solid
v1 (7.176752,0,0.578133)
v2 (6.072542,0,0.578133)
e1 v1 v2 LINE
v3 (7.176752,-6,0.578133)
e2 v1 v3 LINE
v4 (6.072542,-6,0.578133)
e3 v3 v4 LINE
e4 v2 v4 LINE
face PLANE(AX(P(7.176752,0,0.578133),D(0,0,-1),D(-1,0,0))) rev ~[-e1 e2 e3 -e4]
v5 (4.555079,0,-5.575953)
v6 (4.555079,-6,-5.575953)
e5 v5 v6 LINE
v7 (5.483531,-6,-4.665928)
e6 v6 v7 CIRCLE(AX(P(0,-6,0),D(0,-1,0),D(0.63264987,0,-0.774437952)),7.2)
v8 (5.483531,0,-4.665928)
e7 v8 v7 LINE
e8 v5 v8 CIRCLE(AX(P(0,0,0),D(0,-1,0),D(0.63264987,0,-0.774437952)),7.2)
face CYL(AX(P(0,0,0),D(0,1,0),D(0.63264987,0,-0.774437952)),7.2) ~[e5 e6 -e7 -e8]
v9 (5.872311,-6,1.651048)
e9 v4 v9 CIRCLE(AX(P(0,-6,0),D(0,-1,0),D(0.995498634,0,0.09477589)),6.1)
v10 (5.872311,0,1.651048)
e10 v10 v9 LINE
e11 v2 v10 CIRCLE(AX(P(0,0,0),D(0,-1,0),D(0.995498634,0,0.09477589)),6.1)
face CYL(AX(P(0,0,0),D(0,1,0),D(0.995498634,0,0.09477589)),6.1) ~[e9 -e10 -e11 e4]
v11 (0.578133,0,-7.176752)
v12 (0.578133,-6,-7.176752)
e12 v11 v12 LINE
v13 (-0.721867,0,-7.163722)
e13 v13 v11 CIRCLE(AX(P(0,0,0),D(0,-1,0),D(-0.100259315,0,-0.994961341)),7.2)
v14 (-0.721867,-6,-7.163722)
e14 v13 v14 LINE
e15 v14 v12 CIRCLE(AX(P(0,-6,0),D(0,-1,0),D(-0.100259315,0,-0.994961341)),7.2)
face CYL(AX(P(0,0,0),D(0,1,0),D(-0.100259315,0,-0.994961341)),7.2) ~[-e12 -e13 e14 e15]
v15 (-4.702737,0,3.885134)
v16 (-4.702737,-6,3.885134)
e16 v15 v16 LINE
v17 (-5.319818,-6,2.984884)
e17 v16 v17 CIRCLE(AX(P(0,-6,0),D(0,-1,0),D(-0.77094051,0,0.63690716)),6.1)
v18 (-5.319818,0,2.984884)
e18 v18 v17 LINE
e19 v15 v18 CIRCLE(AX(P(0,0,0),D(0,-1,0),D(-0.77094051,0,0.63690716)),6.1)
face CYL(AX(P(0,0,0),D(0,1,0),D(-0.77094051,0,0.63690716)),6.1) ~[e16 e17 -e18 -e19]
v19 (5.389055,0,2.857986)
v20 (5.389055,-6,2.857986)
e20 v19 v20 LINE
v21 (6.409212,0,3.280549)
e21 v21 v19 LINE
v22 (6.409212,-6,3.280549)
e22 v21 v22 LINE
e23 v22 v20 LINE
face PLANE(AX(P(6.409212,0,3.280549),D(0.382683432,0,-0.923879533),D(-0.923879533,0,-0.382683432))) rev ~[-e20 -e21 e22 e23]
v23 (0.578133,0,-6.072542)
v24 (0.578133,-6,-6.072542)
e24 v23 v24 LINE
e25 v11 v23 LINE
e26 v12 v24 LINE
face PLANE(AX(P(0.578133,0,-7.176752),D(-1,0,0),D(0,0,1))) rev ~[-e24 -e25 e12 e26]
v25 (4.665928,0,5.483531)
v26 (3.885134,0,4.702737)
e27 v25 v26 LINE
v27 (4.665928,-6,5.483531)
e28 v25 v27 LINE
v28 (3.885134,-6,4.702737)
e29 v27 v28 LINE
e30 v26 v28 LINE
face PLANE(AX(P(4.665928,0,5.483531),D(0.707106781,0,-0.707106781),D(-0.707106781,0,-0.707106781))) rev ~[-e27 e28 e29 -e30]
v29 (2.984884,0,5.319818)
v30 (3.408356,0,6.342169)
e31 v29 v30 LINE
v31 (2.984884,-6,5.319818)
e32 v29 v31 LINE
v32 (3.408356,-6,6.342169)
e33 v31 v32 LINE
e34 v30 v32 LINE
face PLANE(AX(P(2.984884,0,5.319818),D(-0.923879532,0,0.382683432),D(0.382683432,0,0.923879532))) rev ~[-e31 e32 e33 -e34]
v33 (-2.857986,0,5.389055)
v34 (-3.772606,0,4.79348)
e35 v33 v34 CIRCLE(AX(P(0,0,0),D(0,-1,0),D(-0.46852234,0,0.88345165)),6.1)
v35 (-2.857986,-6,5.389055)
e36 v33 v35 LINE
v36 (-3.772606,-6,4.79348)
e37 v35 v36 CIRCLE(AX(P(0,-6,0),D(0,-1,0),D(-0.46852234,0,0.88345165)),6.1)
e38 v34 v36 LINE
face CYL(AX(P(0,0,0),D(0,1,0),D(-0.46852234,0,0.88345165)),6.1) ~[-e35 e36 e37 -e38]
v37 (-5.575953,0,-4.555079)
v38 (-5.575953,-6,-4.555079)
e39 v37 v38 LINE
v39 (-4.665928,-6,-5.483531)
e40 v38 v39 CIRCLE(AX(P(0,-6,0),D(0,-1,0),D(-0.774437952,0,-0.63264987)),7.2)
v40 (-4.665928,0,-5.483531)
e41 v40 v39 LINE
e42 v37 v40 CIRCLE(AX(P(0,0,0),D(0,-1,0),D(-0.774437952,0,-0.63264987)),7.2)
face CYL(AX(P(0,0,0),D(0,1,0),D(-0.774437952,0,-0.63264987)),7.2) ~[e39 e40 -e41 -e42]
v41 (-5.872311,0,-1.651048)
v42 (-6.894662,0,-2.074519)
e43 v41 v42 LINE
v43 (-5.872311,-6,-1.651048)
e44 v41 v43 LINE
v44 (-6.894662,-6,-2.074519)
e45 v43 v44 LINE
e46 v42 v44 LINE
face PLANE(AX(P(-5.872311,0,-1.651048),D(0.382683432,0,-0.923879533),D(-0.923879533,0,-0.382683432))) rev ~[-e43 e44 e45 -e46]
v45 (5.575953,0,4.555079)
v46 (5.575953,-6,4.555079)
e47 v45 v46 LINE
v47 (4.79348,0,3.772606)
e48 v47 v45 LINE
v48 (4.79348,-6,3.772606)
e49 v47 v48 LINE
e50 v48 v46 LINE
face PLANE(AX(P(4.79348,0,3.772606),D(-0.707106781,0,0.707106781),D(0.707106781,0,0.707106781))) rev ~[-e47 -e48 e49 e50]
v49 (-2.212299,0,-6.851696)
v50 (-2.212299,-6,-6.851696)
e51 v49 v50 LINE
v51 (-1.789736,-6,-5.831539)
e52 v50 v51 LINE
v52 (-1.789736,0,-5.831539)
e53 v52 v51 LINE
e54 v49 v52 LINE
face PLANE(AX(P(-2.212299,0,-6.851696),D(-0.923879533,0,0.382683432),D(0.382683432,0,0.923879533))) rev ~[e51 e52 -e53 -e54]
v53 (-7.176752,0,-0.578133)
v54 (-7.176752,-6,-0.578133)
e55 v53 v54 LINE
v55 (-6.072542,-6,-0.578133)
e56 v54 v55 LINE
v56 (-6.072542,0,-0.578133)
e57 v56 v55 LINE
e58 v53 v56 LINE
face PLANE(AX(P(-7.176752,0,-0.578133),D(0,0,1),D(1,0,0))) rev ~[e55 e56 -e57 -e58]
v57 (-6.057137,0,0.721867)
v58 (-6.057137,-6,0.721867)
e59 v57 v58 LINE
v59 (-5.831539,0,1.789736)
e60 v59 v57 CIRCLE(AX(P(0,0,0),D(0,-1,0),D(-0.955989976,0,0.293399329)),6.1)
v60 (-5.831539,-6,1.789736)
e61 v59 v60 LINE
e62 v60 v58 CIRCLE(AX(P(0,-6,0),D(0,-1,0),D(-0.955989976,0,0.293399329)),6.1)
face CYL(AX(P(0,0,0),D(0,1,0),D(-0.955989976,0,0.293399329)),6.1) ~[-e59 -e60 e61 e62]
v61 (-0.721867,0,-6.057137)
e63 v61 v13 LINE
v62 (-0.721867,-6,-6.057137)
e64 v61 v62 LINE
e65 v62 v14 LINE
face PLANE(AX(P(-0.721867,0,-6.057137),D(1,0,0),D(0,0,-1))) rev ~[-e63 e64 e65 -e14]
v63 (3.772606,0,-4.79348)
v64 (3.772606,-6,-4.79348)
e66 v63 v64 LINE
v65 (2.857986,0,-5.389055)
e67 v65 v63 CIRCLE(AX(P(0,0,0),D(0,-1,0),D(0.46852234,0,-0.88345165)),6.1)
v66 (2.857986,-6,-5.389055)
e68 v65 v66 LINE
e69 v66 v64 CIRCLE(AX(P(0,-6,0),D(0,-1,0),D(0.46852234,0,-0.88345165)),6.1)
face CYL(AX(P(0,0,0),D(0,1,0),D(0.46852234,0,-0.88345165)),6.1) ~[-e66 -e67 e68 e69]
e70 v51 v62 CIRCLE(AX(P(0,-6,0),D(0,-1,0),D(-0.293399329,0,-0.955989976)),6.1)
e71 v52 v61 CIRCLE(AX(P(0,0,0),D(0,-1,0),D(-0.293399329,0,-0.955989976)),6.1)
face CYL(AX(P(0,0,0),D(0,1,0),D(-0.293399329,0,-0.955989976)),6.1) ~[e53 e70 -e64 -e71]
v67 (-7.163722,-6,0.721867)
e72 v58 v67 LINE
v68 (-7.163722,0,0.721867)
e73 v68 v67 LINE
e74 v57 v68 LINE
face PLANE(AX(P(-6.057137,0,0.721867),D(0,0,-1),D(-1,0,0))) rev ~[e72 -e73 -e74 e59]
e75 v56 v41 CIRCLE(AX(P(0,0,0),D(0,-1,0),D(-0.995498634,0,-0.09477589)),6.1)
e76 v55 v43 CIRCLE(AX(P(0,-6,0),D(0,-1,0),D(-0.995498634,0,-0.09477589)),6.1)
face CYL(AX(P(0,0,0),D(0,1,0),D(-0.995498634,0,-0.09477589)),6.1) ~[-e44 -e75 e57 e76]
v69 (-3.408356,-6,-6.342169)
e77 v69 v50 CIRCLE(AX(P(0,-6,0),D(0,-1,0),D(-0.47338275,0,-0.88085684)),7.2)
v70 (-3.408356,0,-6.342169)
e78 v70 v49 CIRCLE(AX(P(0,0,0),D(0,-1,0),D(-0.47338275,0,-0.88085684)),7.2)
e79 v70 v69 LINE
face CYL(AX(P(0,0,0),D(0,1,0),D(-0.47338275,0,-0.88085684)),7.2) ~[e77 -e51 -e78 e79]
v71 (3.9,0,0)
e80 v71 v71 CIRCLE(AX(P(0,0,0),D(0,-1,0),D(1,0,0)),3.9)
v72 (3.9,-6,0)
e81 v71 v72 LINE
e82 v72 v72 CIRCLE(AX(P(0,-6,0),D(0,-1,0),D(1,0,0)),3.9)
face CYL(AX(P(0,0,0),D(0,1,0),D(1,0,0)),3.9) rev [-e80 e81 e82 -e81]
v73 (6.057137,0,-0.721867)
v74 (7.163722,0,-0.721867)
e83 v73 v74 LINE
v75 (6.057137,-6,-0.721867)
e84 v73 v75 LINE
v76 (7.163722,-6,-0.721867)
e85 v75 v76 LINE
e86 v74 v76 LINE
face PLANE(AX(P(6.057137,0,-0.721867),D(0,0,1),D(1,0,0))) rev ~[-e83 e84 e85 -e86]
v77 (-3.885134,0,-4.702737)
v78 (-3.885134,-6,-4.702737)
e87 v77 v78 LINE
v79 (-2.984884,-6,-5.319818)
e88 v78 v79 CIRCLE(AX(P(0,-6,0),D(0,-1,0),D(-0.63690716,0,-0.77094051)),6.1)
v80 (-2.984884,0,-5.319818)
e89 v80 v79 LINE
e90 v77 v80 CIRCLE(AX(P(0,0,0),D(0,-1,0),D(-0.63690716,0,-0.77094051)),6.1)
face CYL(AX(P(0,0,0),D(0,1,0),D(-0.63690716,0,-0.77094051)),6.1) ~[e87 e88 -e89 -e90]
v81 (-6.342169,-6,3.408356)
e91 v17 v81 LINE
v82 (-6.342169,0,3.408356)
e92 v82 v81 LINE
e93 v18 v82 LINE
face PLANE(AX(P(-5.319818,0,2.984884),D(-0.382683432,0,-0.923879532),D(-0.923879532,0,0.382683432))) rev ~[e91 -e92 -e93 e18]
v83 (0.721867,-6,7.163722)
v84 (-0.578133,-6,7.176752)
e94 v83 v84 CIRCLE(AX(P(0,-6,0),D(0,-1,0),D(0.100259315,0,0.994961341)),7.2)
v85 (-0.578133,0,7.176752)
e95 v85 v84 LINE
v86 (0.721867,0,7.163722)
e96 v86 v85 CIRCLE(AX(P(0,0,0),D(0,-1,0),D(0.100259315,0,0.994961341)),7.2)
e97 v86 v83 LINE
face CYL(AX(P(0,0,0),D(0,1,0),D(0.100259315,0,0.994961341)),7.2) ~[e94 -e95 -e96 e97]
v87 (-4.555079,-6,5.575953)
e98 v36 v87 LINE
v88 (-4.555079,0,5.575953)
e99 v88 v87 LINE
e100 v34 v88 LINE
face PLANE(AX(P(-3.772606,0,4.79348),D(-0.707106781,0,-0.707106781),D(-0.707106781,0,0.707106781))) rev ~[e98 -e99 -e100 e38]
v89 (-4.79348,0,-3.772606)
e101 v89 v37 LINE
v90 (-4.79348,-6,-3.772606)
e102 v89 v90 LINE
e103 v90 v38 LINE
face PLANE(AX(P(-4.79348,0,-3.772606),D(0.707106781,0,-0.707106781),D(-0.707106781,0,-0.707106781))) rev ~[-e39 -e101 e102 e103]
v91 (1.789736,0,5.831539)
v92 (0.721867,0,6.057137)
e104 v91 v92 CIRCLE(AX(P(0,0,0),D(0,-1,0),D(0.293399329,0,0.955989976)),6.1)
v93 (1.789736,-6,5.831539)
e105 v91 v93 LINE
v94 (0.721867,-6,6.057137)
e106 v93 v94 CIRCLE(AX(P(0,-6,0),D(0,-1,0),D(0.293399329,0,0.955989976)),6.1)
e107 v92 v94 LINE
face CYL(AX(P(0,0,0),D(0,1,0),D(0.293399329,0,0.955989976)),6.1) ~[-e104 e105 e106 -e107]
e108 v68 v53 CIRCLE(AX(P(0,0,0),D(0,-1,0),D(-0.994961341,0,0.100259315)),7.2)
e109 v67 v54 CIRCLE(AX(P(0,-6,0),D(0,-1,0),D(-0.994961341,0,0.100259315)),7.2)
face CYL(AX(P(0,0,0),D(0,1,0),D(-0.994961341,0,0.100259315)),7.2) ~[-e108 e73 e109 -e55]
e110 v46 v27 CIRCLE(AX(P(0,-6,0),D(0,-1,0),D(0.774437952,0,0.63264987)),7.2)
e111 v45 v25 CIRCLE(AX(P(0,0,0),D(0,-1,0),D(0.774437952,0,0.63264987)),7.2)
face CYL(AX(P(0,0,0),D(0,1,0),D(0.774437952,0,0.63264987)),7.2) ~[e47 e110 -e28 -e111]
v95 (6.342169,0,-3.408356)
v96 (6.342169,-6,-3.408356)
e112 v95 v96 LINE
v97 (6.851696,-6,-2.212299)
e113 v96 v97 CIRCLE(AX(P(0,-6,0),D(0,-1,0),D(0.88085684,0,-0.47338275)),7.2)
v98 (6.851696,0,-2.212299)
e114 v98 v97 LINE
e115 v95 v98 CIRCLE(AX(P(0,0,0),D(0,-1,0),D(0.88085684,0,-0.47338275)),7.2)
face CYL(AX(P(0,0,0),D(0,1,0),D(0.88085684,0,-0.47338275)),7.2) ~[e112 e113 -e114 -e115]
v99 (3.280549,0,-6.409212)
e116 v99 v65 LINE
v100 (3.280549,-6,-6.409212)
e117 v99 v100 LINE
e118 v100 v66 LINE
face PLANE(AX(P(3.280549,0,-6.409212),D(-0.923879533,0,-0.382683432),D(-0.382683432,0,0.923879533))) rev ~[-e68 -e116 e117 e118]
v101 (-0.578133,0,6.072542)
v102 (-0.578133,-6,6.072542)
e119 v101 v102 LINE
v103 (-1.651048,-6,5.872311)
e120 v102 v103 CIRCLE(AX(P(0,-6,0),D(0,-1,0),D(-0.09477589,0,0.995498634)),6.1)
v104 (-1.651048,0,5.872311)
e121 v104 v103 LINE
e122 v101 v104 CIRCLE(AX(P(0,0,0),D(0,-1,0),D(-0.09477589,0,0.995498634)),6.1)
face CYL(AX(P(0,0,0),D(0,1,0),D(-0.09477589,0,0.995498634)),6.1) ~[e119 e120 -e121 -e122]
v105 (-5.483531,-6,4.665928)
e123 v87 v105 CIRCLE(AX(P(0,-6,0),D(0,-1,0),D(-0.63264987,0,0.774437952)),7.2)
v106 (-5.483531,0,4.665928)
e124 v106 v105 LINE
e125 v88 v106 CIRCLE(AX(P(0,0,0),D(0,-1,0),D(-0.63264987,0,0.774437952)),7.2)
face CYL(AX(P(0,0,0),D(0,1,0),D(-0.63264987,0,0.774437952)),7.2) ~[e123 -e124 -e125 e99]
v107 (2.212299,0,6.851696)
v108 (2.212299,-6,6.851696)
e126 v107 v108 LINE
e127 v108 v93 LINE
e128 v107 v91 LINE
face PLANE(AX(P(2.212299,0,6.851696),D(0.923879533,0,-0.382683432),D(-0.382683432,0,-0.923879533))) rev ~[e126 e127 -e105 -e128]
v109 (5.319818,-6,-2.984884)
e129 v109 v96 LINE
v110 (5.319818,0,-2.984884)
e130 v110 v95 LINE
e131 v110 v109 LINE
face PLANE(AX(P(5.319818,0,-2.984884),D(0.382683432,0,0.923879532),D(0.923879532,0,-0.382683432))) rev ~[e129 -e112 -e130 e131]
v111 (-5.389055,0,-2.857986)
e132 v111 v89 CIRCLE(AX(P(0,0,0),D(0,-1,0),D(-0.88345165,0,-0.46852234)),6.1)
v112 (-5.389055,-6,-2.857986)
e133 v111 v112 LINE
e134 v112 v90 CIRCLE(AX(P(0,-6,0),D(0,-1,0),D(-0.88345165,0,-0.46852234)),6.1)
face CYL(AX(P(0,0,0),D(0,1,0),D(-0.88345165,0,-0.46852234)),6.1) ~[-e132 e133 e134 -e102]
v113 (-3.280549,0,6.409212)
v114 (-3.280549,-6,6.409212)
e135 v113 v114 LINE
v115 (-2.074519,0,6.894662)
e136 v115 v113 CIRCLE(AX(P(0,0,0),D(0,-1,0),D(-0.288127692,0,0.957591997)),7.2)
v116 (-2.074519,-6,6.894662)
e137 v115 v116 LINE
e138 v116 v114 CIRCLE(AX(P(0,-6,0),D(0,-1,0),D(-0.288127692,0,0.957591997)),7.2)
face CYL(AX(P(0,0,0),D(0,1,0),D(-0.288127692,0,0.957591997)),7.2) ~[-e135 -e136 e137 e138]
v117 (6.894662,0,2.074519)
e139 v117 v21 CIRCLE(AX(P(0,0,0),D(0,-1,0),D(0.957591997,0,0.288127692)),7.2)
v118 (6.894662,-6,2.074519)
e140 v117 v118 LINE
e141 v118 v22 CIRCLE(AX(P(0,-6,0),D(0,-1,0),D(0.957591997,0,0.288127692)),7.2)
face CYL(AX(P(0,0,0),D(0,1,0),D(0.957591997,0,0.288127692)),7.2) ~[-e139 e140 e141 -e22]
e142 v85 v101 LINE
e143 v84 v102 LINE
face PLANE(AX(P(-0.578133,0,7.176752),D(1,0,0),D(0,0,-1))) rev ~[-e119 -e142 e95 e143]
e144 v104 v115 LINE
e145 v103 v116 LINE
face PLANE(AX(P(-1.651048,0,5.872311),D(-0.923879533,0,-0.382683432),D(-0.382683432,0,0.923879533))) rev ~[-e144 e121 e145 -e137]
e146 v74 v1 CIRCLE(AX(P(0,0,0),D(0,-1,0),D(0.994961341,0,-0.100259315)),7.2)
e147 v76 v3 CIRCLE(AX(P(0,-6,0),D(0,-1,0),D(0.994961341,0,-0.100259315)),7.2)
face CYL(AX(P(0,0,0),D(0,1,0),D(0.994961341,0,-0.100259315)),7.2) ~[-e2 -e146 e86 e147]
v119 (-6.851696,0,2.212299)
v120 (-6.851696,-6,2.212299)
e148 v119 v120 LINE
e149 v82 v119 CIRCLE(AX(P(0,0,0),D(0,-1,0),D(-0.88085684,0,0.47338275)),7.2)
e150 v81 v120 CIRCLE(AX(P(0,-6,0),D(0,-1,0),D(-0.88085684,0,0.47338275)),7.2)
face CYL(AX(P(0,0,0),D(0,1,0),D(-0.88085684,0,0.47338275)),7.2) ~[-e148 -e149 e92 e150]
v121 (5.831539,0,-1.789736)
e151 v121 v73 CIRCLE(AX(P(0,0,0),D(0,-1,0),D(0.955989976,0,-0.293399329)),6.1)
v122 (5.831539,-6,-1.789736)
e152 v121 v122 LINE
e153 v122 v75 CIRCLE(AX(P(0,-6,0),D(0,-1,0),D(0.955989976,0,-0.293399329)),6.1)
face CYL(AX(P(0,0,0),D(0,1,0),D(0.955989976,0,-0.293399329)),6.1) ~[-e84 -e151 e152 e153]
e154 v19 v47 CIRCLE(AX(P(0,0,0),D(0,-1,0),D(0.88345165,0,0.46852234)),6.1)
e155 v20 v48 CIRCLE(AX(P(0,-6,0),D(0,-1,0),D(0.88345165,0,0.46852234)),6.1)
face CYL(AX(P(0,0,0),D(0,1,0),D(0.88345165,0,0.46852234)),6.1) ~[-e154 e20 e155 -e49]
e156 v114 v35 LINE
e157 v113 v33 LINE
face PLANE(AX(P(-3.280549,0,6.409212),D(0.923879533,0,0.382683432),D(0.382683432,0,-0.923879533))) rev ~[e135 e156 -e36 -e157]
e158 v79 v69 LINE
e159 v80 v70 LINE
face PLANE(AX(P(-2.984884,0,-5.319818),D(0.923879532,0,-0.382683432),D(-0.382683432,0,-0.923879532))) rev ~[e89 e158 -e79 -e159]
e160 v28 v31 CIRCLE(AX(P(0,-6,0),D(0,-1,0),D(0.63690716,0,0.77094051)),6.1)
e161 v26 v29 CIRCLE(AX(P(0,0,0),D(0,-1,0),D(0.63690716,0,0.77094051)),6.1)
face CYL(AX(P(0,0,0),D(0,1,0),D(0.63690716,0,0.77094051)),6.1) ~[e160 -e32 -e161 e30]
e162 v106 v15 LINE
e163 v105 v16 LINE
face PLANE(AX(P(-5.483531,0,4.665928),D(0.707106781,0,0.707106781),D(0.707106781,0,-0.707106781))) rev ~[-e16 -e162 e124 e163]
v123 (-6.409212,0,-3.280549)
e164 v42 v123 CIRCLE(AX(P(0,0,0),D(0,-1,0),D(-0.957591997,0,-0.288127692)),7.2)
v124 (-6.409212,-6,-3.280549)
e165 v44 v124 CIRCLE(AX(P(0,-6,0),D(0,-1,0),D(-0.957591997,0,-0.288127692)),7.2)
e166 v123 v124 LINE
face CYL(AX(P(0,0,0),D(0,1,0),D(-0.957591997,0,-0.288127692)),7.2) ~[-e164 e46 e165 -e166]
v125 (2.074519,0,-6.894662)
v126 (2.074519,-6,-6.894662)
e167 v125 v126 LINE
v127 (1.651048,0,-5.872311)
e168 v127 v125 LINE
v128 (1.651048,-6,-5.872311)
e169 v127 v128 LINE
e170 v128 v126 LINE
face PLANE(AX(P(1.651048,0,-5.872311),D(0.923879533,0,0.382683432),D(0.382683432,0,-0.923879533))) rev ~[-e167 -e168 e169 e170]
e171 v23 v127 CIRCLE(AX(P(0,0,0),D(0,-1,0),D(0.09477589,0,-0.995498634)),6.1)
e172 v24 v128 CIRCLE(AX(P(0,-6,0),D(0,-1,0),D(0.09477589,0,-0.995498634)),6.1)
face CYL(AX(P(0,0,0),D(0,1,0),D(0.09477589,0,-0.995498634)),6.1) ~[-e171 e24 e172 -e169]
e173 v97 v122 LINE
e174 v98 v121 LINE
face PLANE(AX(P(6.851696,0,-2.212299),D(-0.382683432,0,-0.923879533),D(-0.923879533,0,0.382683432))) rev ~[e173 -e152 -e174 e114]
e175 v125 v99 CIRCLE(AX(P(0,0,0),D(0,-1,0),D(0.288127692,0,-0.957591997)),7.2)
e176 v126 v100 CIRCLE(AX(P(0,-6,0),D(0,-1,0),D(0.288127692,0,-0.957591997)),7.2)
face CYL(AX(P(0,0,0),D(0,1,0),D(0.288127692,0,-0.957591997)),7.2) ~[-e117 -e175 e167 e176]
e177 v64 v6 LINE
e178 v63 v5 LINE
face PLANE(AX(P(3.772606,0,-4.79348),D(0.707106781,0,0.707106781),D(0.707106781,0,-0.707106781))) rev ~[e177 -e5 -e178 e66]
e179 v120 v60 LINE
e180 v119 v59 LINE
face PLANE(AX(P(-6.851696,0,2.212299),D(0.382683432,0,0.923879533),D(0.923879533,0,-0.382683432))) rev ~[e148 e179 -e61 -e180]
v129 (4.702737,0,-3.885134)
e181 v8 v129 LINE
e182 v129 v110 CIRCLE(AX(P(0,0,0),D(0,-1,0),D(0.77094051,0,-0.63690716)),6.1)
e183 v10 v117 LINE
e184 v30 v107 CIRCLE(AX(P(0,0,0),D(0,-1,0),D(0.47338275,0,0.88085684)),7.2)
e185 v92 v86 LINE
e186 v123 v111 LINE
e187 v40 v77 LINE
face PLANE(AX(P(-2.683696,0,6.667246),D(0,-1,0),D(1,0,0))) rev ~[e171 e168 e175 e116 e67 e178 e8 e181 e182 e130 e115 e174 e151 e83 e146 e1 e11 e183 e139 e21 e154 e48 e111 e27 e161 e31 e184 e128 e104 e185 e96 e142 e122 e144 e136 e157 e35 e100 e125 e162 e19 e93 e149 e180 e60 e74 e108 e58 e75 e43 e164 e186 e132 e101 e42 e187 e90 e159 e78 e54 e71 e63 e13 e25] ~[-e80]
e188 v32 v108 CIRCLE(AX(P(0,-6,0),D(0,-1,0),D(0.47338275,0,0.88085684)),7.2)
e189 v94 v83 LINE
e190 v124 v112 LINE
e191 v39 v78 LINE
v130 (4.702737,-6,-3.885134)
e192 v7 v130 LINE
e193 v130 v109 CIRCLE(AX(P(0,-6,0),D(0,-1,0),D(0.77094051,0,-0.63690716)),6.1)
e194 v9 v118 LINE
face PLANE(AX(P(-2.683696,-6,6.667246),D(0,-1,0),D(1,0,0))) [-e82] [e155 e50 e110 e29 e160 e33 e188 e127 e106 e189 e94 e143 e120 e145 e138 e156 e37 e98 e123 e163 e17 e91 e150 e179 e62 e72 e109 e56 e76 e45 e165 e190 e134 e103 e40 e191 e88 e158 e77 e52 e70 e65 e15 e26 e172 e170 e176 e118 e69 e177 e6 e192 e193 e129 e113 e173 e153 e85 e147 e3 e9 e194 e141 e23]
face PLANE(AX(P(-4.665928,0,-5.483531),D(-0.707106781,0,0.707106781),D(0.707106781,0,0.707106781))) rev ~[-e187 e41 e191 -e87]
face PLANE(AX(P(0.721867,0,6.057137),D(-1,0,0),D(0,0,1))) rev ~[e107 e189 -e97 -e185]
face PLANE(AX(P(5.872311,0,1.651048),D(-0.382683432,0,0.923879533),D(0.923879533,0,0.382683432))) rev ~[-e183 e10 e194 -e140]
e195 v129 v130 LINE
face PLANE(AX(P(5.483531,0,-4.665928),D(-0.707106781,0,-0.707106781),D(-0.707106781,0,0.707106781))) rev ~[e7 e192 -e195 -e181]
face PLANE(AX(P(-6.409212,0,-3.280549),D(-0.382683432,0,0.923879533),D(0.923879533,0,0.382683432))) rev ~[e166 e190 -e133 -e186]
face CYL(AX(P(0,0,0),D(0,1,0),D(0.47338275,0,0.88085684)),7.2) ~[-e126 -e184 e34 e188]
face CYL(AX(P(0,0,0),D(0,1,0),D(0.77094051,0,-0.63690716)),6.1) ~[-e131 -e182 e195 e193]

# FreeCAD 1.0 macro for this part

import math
import FreeCAD as App
import Part
import Sketcher
Q = App.Units.Quantity

doc = App.newDocument("Part")
body = doc.addObject("PartDesign::Body", "Body")

sketch1 = body.newObject("Sketcher::SketchObject", "Sketch")
sketch1.AttachmentSupport = (doc.getObject("XZ_Plane"), [""])
sketch1.MapMode = "FlatFace"
sketch1.addGeometry(Part.ArcOfCircle(Part.Circle(App.Vector(0, 0, 0), App.Vector(0, 0, 1), 7.2), math.radians(106.75), math.radians(117.11)), False)
sketch1.addGeometry(Part.LineSegment(App.Vector(-3.3, 6.4, 0), App.Vector(-2.9, 5.4, 0)), False)
sketch1.addGeometry(Part.ArcOfCircle(Part.Circle(App.Vector(0, 0, 0), App.Vector(0, 0, 1), 6.1), math.radians(117.94), math.radians(128.2)), False)
sketch1.addGeometry(Part.LineSegment(App.Vector(-3.8, 4.8, 0), App.Vector(-4.6, 5.6, 0)), False)
sketch1.addGeometry(Part.ArcOfCircle(Part.Circle(App.Vector(0, 0, 0), App.Vector(0, 0, 1), 7.2), math.radians(129.25), math.radians(139.61)), False)
sketch1.addGeometry(Part.LineSegment(App.Vector(-5.5, 4.7, 0), App.Vector(-4.7, 3.9, 0)), False)
sketch1.addGeometry(Part.ArcOfCircle(Part.Circle(App.Vector(0, 0, 0), App.Vector(0, 0, 1), 6.1), math.radians(140.44), math.radians(150.7)), False)
sketch1.addGeometry(Part.LineSegment(App.Vector(-5.3, 3, 0), App.Vector(-6.3, 3.4, 0)), False)
sketch1.addGeometry(Part.ArcOfCircle(Part.Circle(App.Vector(0, 0, 0), App.Vector(0, 0, 1), 7.2), math.radians(151.75), math.radians(162.11)), False)
sketch1.addGeometry(Part.LineSegment(App.Vector(-6.9, 2.2, 0), App.Vector(-5.8, 1.8, 0)), False)
sketch1.addGeometry(Part.ArcOfCircle(Part.Circle(App.Vector(0, 0, 0), App.Vector(0, 0, 1), 6.1), math.radians(162.94), math.radians(173.2)), False)
sketch1.addGeometry(Part.LineSegment(App.Vector(-6.1, 0.7, 0), App.Vector(-7.2, 0.7, 0)), False)
sketch1.addGeometry(Part.ArcOfCircle(Part.Circle(App.Vector(0, 0, 0), App.Vector(0, 0, 1), 7.2), math.radians(174.25), math.radians(184.61)), False)
sketch1.addGeometry(Part.LineSegment(App.Vector(-7.2, -0.6, 0), App.Vector(-6.1, -0.6, 0)), False)
sketch1.addGeometry(Part.ArcOfCircle(Part.Circle(App.Vector(0, 0, 0), App.Vector(0, 0, 1), 6.1), math.radians(-174.56), math.radians(-164.3)), False)
sketch1.addGeometry(Part.LineSegment(App.Vector(-5.9, -1.7, 0), App.Vector(-6.9, -2.1, 0)), False)
sketch1.addGeometry(Part.ArcOfCircle(Part.Circle(App.Vector(0, 0, 0), App.Vector(0, 0, 1), 7.2), math.radians(-163.25), math.radians(-152.89)), False)
sketch1.addGeometry(Part.LineSegment(App.Vector(-6.4, -3.3, 0), App.Vector(-5.4, -2.9, 0)), False)
sketch1.addGeometry(Part.ArcOfCircle(Part.Circle(App.Vector(0, 0, 0), App.Vector(0, 0, 1), 6.1), math.radians(-152.06), math.radians(-141.8)), False)
sketch1.addGeometry(Part.LineSegment(App.Vector(-4.8, -3.8, 0), App.Vector(-5.6, -4.6, 0)), False)
sketch1.addGeometry(Part.ArcOfCircle(Part.Circle(App.Vector(0, 0, 0), App.Vector(0, 0, 1), 7.2), math.radians(-140.75), math.radians(-130.39)), False)
sketch1.addGeometry(Part.LineSegment(App.Vector(-4.7, -5.5, 0), App.Vector(-3.9, -4.7, 0)), False)
sketch1.addGeometry(Part.ArcOfCircle(Part.Circle(App.Vector(0, 0, 0), App.Vector(0, 0, 1), 6.1), math.radians(-129.56), math.radians(-119.3)), False)
sketch1.addGeometry(Part.LineSegment(App.Vector(-3, -5.3, 0), App.Vector(-3.4, -6.3, 0)), False)
sketch1.addGeometry(Part.ArcOfCircle(Part.Circle(App.Vector(0, 0, 0), App.Vector(0, 0, 1), 7.2), math.radians(-118.25), math.radians(-107.89)), False)
sketch1.addGeometry(Part.LineSegment(App.Vector(-2.2, -6.9, 0), App.Vector(-1.8, -5.8, 0)), False)
sketch1.addGeometry(Part.ArcOfCircle(Part.Circle(App.Vector(0, 0, 0), App.Vector(0, 0, 1), 6.1), math.radians(-107.06), math.radians(-96.8)), False)
sketch1.addGeometry(Part.LineSegment(App.Vector(-0.7, -6.1, 0), App.Vector(-0.7, -7.2, 0)), False)
sketch1.addGeometry(Part.ArcOfCircle(Part.Circle(App.Vector(0, 0, 0), App.Vector(0, 0, 1), 7.2), math.radians(-95.75), math.radians(-85.39)), False)
sketch1.addGeometry(Part.LineSegment(App.Vector(0.6, -7.2, 0), App.Vector(0.6, -6.1, 0)), False)
sketch1.addGeometry(Part.ArcOfCircle(Part.Circle(App.Vector(0, 0, 0), App.Vector(0, 0, 1), 6.1), math.radians(-84.56), math.radians(-74.3)), False)
sketch1.addGeometry(Part.LineSegment(App.Vector(1.7, -5.9, 0), App.Vector(2.1, -6.9, 0)), False)
sketch1.addGeometry(Part.ArcOfCircle(Part.Circle(App.Vector(0, 0, 0), App.Vector(0, 0, 1), 7.2), math.radians(-73.25), math.radians(-62.89)), False)
sketch1.addGeometry(Part.LineSegment(App.Vector(3.3, -6.4, 0), App.Vector(2.9, -5.4, 0)), False)
sketch1.addGeometry(Part.ArcOfCircle(Part.Circle(App.Vector(0, 0, 0), App.Vector(0, 0, 1), 6.1), math.radians(-62.06), math.radians(-51.8)), False)
sketch1.addGeometry(Part.LineSegment(App.Vector(3.8, -4.8, 0), App.Vector(4.6, -5.6, 0)), False)
sketch1.addGeometry(Part.ArcOfCircle(Part.Circle(App.Vector(0, 0, 0), App.Vector(0, 0, 1), 7.2), math.radians(-50.75), math.radians(-40.39)), False)
sketch1.addGeometry(Part.LineSegment(App.Vector(5.5, -4.7, 0), App.Vector(4.7, -3.9, 0)), False)
sketch1.addGeometry(Part.ArcOfCircle(Part.Circle(App.Vector(0, 0, 0), App.Vector(0, 0, 1), 6.1), math.radians(-39.56), math.radians(-29.3)), False)
sketch1.addGeometry(Part.LineSegment(App.Vector(5.3, -3, 0), App.Vector(6.3, -3.4, 0)), False)
sketch1.addGeometry(Part.ArcOfCircle(Part.Circle(App.Vector(0, 0, 0), App.Vector(0, 0, 1), 7.2), math.radians(-28.25), math.radians(-17.89)), False)
sketch1.addGeometry(Part.LineSegment(App.Vector(6.9, -2.2, 0), App.Vector(5.8, -1.8, 0)), False)
sketch1.addGeometry(Part.ArcOfCircle(Part.Circle(App.Vector(0, 0, 0), App.Vector(0, 0, 1), 6.1), math.radians(-17.06), math.radians(-6.8)), False)
sketch1.addGeometry(Part.LineSegment(App.Vector(6.1, -0.7, 0), App.Vector(7.2, -0.7, 0)), False)
sketch1.addGeometry(Part.ArcOfCircle(Part.Circle(App.Vector(0, 0, 0), App.Vector(0, 0, 1), 7.2), math.radians(-5.75), math.radians(4.61)), False)
sketch1.addGeometry(Part.LineSegment(App.Vector(7.2, 0.6, 0), App.Vector(6.1, 0.6, 0)), False)
sketch1.addGeometry(Part.ArcOfCircle(Part.Circle(App.Vector(0, 0, 0), App.Vector(0, 0, 1), 6.1), math.radians(5.44), math.radians(15.7)), False)
sketch1.addGeometry(Part.LineSegment(App.Vector(5.9, 1.7, 0), App.Vector(6.9, 2.1, 0)), False)
sketch1.addGeometry(Part.ArcOfCircle(Part.Circle(App.Vector(0, 0, 0), App.Vector(0, 0, 1), 7.2), math.radians(16.75), math.radians(27.11)), False)
sketch1.addGeometry(Part.LineSegment(App.Vector(6.4, 3.3, 0), App.Vector(5.4, 2.9, 0)), False)
sketch1.addGeometry(Part.ArcOfCircle(Part.Circle(App.Vector(0, 0, 0), App.Vector(0, 0, 1), 6.1), math.radians(27.94), math.radians(38.2)), False)
sketch1.addGeometry(Part.LineSegment(App.Vector(4.8, 3.8, 0), App.Vector(5.6, 4.6, 0)), False)
sketch1.addGeometry(Part.ArcOfCircle(Part.Circle(App.Vector(0, 0, 0), App.Vector(0, 0, 1), 7.2), math.radians(39.25), math.radians(49.61)), False)
sketch1.addGeometry(Part.LineSegment(App.Vector(4.7, 5.5, 0), App.Vector(3.9, 4.7, 0)), False)
sketch1.addGeometry(Part.ArcOfCircle(Part.Circle(App.Vector(0, 0, 0), App.Vector(0, 0, 1), 6.1), math.radians(50.44), math.radians(60.7)), False)
sketch1.addGeometry(Part.LineSegment(App.Vector(3, 5.3, 0), App.Vector(3.4, 6.3, 0)), False)
sketch1.addGeometry(Part.ArcOfCircle(Part.Circle(App.Vector(0, 0, 0), App.Vector(0, 0, 1), 7.2), math.radians(61.75), math.radians(72.11)), False)
sketch1.addGeometry(Part.LineSegment(App.Vector(2.2, 6.9, 0), App.Vector(1.8, 5.8, 0)), False)
sketch1.addGeometry(Part.ArcOfCircle(Part.Circle(App.Vector(0, 0, 0), App.Vector(0, 0, 1), 6.1), math.radians(72.94), math.radians(83.2)), False)
sketch1.addGeometry(Part.LineSegment(App.Vector(0.7, 6.1, 0), App.Vector(0.7, 7.2, 0)), False)
sketch1.addGeometry(Part.ArcOfCircle(Part.Circle(App.Vector(0, 0, 0), App.Vector(0, 0, 1), 7.2), math.radians(84.25), math.radians(94.61)), False)
sketch1.addGeometry(Part.LineSegment(App.Vector(-0.6, 7.2, 0), App.Vector(-0.6, 6.1, 0)), False)
sketch1.addGeometry(Part.ArcOfCircle(Part.Circle(App.Vector(0, 0, 0), App.Vector(0, 0, 1), 6.1), math.radians(95.44), math.radians(105.7)), False)
sketch1.addGeometry(Part.LineSegment(App.Vector(-1.7, 5.9, 0), App.Vector(-2.1, 6.9, 0)), False)
sketch1.addGeometry(Part.Circle(App.Vector(0, 0, 0), App.Vector(0, 0, 1), 3.9), False)
sketch1.addConstraint(Sketcher.Constraint("Coincident", 0, 2, 1, 1))
sketch1.addConstraint(Sketcher.Constraint("Coincident", 1, 2, 2, 1))
sketch1.addConstraint(Sketcher.Constraint("Coincident", 2, 2, 3, 1))
sketch1.addConstraint(Sketcher.Constraint("Coincident", 3, 2, 4, 1))
sketch1.addConstraint(Sketcher.Constraint("Coincident", 4, 2, 5, 1))
sketch1.addConstraint(Sketcher.Constraint("Coincident", 5, 2, 6, 1))
sketch1.addConstraint(Sketcher.Constraint("Coincident", 6, 2, 7, 1))
sketch1.addConstraint(Sketcher.Constraint("Coincident", 7, 2, 8, 1))
sketch1.addConstraint(Sketcher.Constraint("Coincident", 8, 2, 9, 1))
sketch1.addConstraint(Sketcher.Constraint("Coincident", 9, 2, 10, 1))
sketch1.addConstraint(Sketcher.Constraint("Coincident", 10, 2, 11, 1))
sketch1.addConstraint(Sketcher.Constraint("Coincident", 11, 2, 12, 1))
sketch1.addConstraint(Sketcher.Constraint("Coincident", 12, 2, 13, 1))
sketch1.addConstraint(Sketcher.Constraint("Coincident", 13, 2, 14, 1))
sketch1.addConstraint(Sketcher.Constraint("Coincident", 14, 2, 15, 1))
sketch1.addConstraint(Sketcher.Constraint("Coincident", 15, 2, 16, 1))
sketch1.addConstraint(Sketcher.Constraint("Coincident", 16, 2, 17, 1))
sketch1.addConstraint(Sketcher.Constraint("Coincident", 17, 2, 18, 1))
sketch1.addConstraint(Sketcher.Constraint("Coincident", 18, 2, 19, 1))
sketch1.addConstraint(Sketcher.Constraint("Coincident", 19, 2, 20, 1))
sketch1.addConstraint(Sketcher.Constraint("Coincident", 20, 2, 21, 1))
sketch1.addConstraint(Sketcher.Constraint("Coincident", 21, 2, 22, 1))
sketch1.addConstraint(Sketcher.Constraint("Coincident", 22, 2, 23, 1))
sketch1.addConstraint(Sketcher.Constraint("Coincident", 23, 2, 24, 1))
sketch1.addConstraint(Sketcher.Constraint("Coincident", 24, 2, 25, 1))
sketch1.addConstraint(Sketcher.Constraint("Coincident", 25, 2, 26, 1))
sketch1.addConstraint(Sketcher.Constraint("Coincident", 26, 2, 27, 1))
sketch1.addConstraint(Sketcher.Constraint("Coincident", 27, 2, 28, 1))
sketch1.addConstraint(Sketcher.Constraint("Coincident", 28, 2, 29, 1))
sketch1.addConstraint(Sketcher.Constraint("Coincident", 29, 2, 30, 1))
sketch1.addConstraint(Sketcher.Constraint("Coincident", 30, 2, 31, 1))
sketch1.addConstraint(Sketcher.Constraint("Coincident", 31, 2, 32, 1))
sketch1.addConstraint(Sketcher.Constraint("Coincident", 32, 2, 33, 1))
sketch1.addConstraint(Sketcher.Constraint("Coincident", 33, 2, 34, 1))
sketch1.addConstraint(Sketcher.Constraint("Coincident", 34, 2, 35, 1))
sketch1.addConstraint(Sketcher.Constraint("Coincident", 35, 2, 36, 1))
sketch1.addConstraint(Sketcher.Constraint("Coincident", 36, 2, 37, 1))
sketch1.addConstraint(Sketcher.Constraint("Coincident", 37, 2, 38, 1))
sketch1.addConstraint(Sketcher.Constraint("Coincident", 38, 2, 39, 1))
sketch1.addConstraint(Sketcher.Constraint("Coincident", 39, 2, 40, 1))
sketch1.addConstraint(Sketcher.Constraint("Coincident", 40, 2, 41, 1))
sketch1.addConstraint(Sketcher.Constraint("Coincident", 41, 2, 42, 1))
sketch1.addConstraint(Sketcher.Constraint("Coincident", 42, 2, 43, 1))
sketch1.addConstraint(Sketcher.Constraint("Coincident", 43, 2, 44, 1))
sketch1.addConstraint(Sketcher.Constraint("Coincident", 44, 2, 45, 1))
sketch1.addConstraint(Sketcher.Constraint("Coincident", 45, 2, 46, 1))
sketch1.addConstraint(Sketcher.Constraint("Coincident", 46, 2, 47, 1))
sketch1.addConstraint(Sketcher.Constraint("Coincident", 47, 2, 48, 1))
sketch1.addConstraint(Sketcher.Constraint("Coincident", 48, 2, 49, 1))
sketch1.addConstraint(Sketcher.Constraint("Coincident", 49, 2, 50, 1))
sketch1.addConstraint(Sketcher.Constraint("Coincident", 50, 2, 51, 1))
sketch1.addConstraint(Sketcher.Constraint("Coincident", 51, 2, 52, 1))
sketch1.addConstraint(Sketcher.Constraint("Coincident", 52, 2, 53, 1))
sketch1.addConstraint(Sketcher.Constraint("Coincident", 53, 2, 54, 1))
sketch1.addConstraint(Sketcher.Constraint("Coincident", 54, 2, 55, 1))
sketch1.addConstraint(Sketcher.Constraint("Coincident", 55, 2, 56, 1))
sketch1.addConstraint(Sketcher.Constraint("Coincident", 56, 2, 57, 1))
sketch1.addConstraint(Sketcher.Constraint("Coincident", 57, 2, 58, 1))
sketch1.addConstraint(Sketcher.Constraint("Coincident", 58, 2, 59, 1))
sketch1.addConstraint(Sketcher.Constraint("Coincident", 59, 2, 60, 1))
sketch1.addConstraint(Sketcher.Constraint("Coincident", 60, 2, 61, 1))
sketch1.addConstraint(Sketcher.Constraint("Coincident", 61, 2, 62, 1))
sketch1.addConstraint(Sketcher.Constraint("Coincident", 62, 2, 63, 1))
sketch1.addConstraint(Sketcher.Constraint("Coincident", 63, 2, 0, 1))
sketch1.addConstraint(Sketcher.Constraint("Horizontal", 11))
sketch1.addConstraint(Sketcher.Constraint("Horizontal", 13))
sketch1.addConstraint(Sketcher.Constraint("Vertical", 27))
sketch1.addConstraint(Sketcher.Constraint("Vertical", 29))
sketch1.addConstraint(Sketcher.Constraint("Horizontal", 43))
sketch1.addConstraint(Sketcher.Constraint("Horizontal", 45))
sketch1.addConstraint(Sketcher.Constraint("Vertical", 59))
sketch1.addConstraint(Sketcher.Constraint("Vertical", 61))
sketch1.addConstraint(Sketcher.Constraint("Coincident", 0, 3, -1, 1))
sketch1.addConstraint(Sketcher.Constraint("Coincident", 2, 3, -1, 1))
sketch1.addConstraint(Sketcher.Constraint("Coincident", 4, 3, -1, 1))
sketch1.addConstraint(Sketcher.Constraint("Coincident", 6, 3, -1, 1))
sketch1.addConstraint(Sketcher.Constraint("Coincident", 8, 3, -1, 1))
sketch1.addConstraint(Sketcher.Constraint("Coincident", 10, 3, -1, 1))
sketch1.addConstraint(Sketcher.Constraint("Coincident", 12, 3, -1, 1))
sketch1.addConstraint(Sketcher.Constraint("Coincident", 14, 3, -1, 1))
sketch1.addConstraint(Sketcher.Constraint("Coincident", 16, 3, -1, 1))
sketch1.addConstraint(Sketcher.Constraint("Coincident", 18, 3, -1, 1))
sketch1.addConstraint(Sketcher.Constraint("Coincident", 20, 3, -1, 1))
sketch1.addConstraint(Sketcher.Constraint("Coincident", 22, 3, -1, 1))
sketch1.addConstraint(Sketcher.Constraint("Coincident", 24, 3, -1, 1))
sketch1.addConstraint(Sketcher.Constraint("Coincident", 26, 3, -1, 1))
sketch1.addConstraint(Sketcher.Constraint("Coincident", 28, 3, -1, 1))
sketch1.addConstraint(Sketcher.Constraint("Coincident", 30, 3, -1, 1))
sketch1.addConstraint(Sketcher.Constraint("Coincident", 32, 3, -1, 1))
sketch1.addConstraint(Sketcher.Constraint("Coincident", 34, 3, -1, 1))
sketch1.addConstraint(Sketcher.Constraint("Coincident", 36, 3, -1, 1))
sketch1.addConstraint(Sketcher.Constraint("Coincident", 38, 3, -1, 1))
sketch1.addConstraint(Sketcher.Constraint("Coincident", 40, 3, -1, 1))
sketch1.addConstraint(Sketcher.Constraint("Coincident", 42, 3, -1, 1))
sketch1.addConstraint(Sketcher.Constraint("Coincident", 44, 3, -1, 1))
sketch1.addConstraint(Sketcher.Constraint("Coincident", 46, 3, -1, 1))
sketch1.addConstraint(Sketcher.Constraint("Coincident", 48, 3, -1, 1))
sketch1.addConstraint(Sketcher.Constraint("Coincident", 50, 3, -1, 1))
sketch1.addConstraint(Sketcher.Constraint("Coincident", 52, 3, -1, 1))
sketch1.addConstraint(Sketcher.Constraint("Coincident", 54, 3, -1, 1))
sketch1.addConstraint(Sketcher.Constraint("Coincident", 56, 3, -1, 1))
sketch1.addConstraint(Sketcher.Constraint("Coincident", 58, 3, -1, 1))
sketch1.addConstraint(Sketcher.Constraint("Coincident", 60, 3, -1, 1))
sketch1.addConstraint(Sketcher.Constraint("Coincident", 62, 3, -1, 1))
sketch1.addConstraint(Sketcher.Constraint("Coincident", 64, 3, -1, 1))
sketch1.addConstraint(Sketcher.Constraint("Equal", 0, 4))
sketch1.addConstraint(Sketcher.Constraint("Equal", 2, 6))
sketch1.addConstraint(Sketcher.Constraint("Equal", 4, 8))
sketch1.addConstraint(Sketcher.Constraint("Equal", 6, 10))
sketch1.addConstraint(Sketcher.Constraint("Equal", 8, 12))
sketch1.addConstraint(Sketcher.Constraint("Equal", 10, 14))
sketch1.addConstraint(Sketcher.Constraint("Equal", 12, 16))
sketch1.addConstraint(Sketcher.Constraint("Equal", 14, 18))
sketch1.addConstraint(Sketcher.Constraint("Equal", 16, 20))
sketch1.addConstraint(Sketcher.Constraint("Equal", 18, 22))
sketch1.addConstraint(Sketcher.Constraint("Equal", 20, 24))
sketch1.addConstraint(Sketcher.Constraint("Equal", 22, 26))
sketch1.addConstraint(Sketcher.Constraint("Equal", 24, 28))
sketch1.addConstraint(Sketcher.Constraint("Equal", 26, 30))
sketch1.addConstraint(Sketcher.Constraint("Equal", 28, 32))
sketch1.addConstraint(Sketcher.Constraint("Equal", 30, 34))
sketch1.addConstraint(Sketcher.Constraint("Equal", 32, 36))
sketch1.addConstraint(Sketcher.Constraint("Equal", 34, 38))
sketch1.addConstraint(Sketcher.Constraint("Equal", 36, 40))
sketch1.addConstraint(Sketcher.Constraint("Equal", 38, 42))
sketch1.addConstraint(Sketcher.Constraint("Equal", 40, 44))
sketch1.addConstraint(Sketcher.Constraint("Equal", 42, 46))
sketch1.addConstraint(Sketcher.Constraint("Equal", 44, 48))
sketch1.addConstraint(Sketcher.Constraint("Equal", 46, 50))
sketch1.addConstraint(Sketcher.Constraint("Equal", 48, 52))
sketch1.addConstraint(Sketcher.Constraint("Equal", 50, 54))
sketch1.addConstraint(Sketcher.Constraint("Equal", 52, 56))
sketch1.addConstraint(Sketcher.Constraint("Equal", 54, 58))
sketch1.addConstraint(Sketcher.Constraint("Equal", 56, 60))
sketch1.addConstraint(Sketcher.Constraint("Equal", 58, 62))
sketch1.addConstraint(Sketcher.Constraint("Parallel", 3, 5))
sketch1.addConstraint(Sketcher.Constraint("Parallel", 7, 9))
sketch1.addConstraint(Sketcher.Constraint("Perpendicular", 1, 15))
sketch1.addConstraint(Sketcher.Constraint("Parallel", 15, 17))
sketch1.addConstraint(Sketcher.Constraint("Perpendicular", 5, 19))
sketch1.addConstraint(Sketcher.Constraint("Parallel", 19, 21))
sketch1.addConstraint(Sketcher.Constraint("Perpendicular", 9, 23))
sketch1.addConstraint(Sketcher.Constraint("Parallel", 23, 25))
sketch1.addConstraint(Sketcher.Constraint("Perpendicular", 17, 31))
sketch1.addConstraint(Sketcher.Constraint("Parallel", 31, 33))
sketch1.addConstraint(Sketcher.Constraint("Perpendicular", 21, 35))
sketch1.addConstraint(Sketcher.Constraint("Parallel", 35, 37))
sketch1.addConstraint(Sketcher.Constraint("Perpendicular", 25, 39))
sketch1.addConstraint(Sketcher.Constraint("Parallel", 39, 41))
sketch1.addConstraint(Sketcher.Constraint("Perpendicular", 33, 47))
sketch1.addConstraint(Sketcher.Constraint("Parallel", 47, 49))
sketch1.addConstraint(Sketcher.Constraint("Perpendicular", 37, 51))
sketch1.addConstraint(Sketcher.Constraint("Parallel", 51, 53))
sketch1.addConstraint(Sketcher.Constraint("Perpendicular", 41, 55))
sketch1.addConstraint(Sketcher.Constraint("Parallel", 55, 57))
sketch1.addConstraint(Sketcher.Constraint("Perpendicular", 49, 63))
sketch1.addConstraint(Sketcher.Constraint("Equal", 11, 43))
sketch1.addConstraint(Sketcher.Constraint("Equal", 13, 45))
sketch1.addConstraint(Sketcher.Constraint("Equal", 43, 27))
sketch1.addConstraint(Sketcher.Constraint("Equal", 45, 29))
sketch1.addConstraint(Sketcher.Constraint("Equal", 27, 59))
sketch1.addConstraint(Sketcher.Constraint("Equal", 29, 61))
sketch1.addConstraint(Sketcher.Constraint("Equal", 1, 5))
sketch1.addConstraint(Sketcher.Constraint("Equal", 3, 7))
sketch1.addConstraint(Sketcher.Constraint("Equal", 5, 9))
sketch1.addConstraint(Sketcher.Constraint("Equal", 7, 15))
sketch1.addConstraint(Sketcher.Constraint("Equal", 9, 17))
sketch1.addConstraint(Sketcher.Constraint("Equal", 15, 19))
sketch1.addConstraint(Sketcher.Constraint("Equal", 17, 21))
sketch1.addConstraint(Sketcher.Constraint("Equal", 19, 23))
sketch1.addConstraint(Sketcher.Constraint("Equal", 21, 25))
sketch1.addConstraint(Sketcher.Constraint("Equal", 23, 31))
sketch1.addConstraint(Sketcher.Constraint("Equal", 25, 33))
sketch1.addConstraint(Sketcher.Constraint("Equal", 31, 35))
sketch1.addConstraint(Sketcher.Constraint("Equal", 33, 37))
sketch1.addConstraint(Sketcher.Constraint("Equal", 35, 39))
sketch1.addConstraint(Sketcher.Constraint("Equal", 37, 41))
sketch1.addConstraint(Sketcher.Constraint("Equal", 39, 47))
sketch1.addConstraint(Sketcher.Constraint("Equal", 41, 49))
sketch1.addConstraint(Sketcher.Constraint("Equal", 47, 51))
sketch1.addConstraint(Sketcher.Constraint("Equal", 49, 53))
sketch1.addConstraint(Sketcher.Constraint("Equal", 51, 55))
sketch1.addConstraint(Sketcher.Constraint("Equal", 53, 57))
sketch1.addConstraint(Sketcher.Constraint("Equal", 55, 63))
sketch1.addConstraint(Sketcher.Constraint("Diameter", 64, 7.8))
sketch1.addConstraint(Sketcher.Constraint("Radius", 0, 7.2))
sketch1.addConstraint(Sketcher.Constraint("Radius", 2, 6.1))
sketch1.addConstraint(Sketcher.Constraint("Angle", 3, Q("135 deg")))
sketch1.addConstraint(Sketcher.Constraint("Angle", 1, Q("-67.5 deg")))
sketch1.addConstraint(Sketcher.Constraint("Angle", 7, Q("157.5 deg")))
sketch1.addConstraint(Sketcher.Constraint("DistanceX", 13, 1, 13, 2, 1.10421))
sketch1.addConstraint(Sketcher.Constraint("DistanceY", -1, 1, 8, 2, 2.212299))
sketch1.addConstraint(Sketcher.Constraint("DistanceX", 11, 2, 11, 1, 1.106585))
sketch1.addConstraint(Sketcher.Constraint("DistanceY", -1, 1, 2, 2, 4.79348))
pad1 = body.newObject("PartDesign::Pad", "Pad")
pad1.Profile = sketch1
pad1.Length = 6

doc.recompute()
